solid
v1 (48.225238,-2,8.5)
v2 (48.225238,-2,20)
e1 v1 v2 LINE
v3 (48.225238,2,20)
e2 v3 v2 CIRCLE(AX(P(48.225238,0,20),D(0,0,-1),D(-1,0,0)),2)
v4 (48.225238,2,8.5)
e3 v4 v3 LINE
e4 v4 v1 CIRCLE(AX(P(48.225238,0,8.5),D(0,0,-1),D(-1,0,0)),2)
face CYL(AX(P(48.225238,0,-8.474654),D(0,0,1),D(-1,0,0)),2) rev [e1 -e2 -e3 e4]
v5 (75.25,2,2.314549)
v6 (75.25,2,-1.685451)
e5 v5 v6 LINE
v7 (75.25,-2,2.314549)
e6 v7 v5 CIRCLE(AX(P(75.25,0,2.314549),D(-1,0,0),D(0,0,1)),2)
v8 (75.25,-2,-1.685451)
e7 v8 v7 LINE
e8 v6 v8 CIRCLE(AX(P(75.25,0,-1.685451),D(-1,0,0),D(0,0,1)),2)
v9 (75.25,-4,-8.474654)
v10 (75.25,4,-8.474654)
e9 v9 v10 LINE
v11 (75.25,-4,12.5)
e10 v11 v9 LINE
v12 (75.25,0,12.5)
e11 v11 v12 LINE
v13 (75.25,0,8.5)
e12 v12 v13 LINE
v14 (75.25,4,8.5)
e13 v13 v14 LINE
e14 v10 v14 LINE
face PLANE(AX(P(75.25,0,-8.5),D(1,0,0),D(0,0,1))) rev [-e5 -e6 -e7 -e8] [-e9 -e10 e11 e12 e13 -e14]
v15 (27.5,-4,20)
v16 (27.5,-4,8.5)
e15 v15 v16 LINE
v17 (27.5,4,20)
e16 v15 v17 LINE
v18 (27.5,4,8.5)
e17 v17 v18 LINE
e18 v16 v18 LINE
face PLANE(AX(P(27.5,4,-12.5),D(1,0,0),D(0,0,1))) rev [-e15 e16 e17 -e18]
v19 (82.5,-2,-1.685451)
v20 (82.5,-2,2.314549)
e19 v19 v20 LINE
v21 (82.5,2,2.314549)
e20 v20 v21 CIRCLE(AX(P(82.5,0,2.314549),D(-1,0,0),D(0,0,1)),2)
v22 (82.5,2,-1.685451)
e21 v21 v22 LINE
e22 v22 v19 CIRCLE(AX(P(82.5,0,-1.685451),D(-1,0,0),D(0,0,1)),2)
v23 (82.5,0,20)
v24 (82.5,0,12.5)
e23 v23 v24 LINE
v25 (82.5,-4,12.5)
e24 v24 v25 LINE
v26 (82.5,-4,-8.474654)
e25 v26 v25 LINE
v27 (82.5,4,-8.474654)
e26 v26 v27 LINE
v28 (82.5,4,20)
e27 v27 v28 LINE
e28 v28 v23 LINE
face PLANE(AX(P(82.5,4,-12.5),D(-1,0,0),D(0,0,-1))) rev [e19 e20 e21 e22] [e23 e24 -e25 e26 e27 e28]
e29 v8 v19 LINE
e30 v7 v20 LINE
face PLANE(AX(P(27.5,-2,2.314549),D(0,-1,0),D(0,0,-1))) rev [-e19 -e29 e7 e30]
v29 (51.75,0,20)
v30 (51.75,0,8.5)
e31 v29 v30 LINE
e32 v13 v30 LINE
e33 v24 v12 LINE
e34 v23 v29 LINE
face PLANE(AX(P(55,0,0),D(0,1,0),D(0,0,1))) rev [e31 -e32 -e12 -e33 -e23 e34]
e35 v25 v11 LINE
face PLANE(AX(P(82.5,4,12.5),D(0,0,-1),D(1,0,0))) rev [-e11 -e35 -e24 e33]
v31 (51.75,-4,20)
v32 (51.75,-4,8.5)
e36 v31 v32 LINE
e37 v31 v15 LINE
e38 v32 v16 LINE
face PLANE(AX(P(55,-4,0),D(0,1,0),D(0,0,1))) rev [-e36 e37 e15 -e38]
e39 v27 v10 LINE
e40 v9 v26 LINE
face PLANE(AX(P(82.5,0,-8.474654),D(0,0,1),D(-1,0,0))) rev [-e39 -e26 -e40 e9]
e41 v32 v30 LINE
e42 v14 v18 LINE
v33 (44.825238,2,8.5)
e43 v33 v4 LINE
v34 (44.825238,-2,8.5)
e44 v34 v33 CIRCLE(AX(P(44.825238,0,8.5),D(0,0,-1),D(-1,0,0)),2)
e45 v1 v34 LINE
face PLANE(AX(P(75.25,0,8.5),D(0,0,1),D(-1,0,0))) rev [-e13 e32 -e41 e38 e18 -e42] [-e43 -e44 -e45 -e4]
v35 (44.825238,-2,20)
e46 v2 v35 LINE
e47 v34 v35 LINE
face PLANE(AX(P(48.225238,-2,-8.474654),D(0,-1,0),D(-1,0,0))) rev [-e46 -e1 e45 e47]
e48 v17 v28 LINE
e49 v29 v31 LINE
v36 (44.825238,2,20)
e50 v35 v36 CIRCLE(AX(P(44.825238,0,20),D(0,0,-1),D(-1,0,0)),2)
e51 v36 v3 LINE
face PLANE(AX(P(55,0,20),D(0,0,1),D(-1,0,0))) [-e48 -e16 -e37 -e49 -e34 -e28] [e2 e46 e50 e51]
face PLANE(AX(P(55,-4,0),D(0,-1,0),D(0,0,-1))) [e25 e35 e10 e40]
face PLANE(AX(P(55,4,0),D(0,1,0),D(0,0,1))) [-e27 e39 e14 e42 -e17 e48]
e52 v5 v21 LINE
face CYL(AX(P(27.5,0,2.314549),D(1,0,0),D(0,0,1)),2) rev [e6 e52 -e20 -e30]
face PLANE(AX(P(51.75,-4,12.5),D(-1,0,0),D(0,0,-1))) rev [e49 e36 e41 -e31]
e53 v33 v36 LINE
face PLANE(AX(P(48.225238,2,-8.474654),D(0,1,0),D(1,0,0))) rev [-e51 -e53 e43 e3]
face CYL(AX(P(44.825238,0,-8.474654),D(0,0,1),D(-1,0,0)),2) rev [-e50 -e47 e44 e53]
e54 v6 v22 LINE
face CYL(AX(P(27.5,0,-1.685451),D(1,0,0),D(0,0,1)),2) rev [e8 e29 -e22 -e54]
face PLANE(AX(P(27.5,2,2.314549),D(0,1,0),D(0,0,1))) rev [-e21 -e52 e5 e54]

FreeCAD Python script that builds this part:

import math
import FreeCAD as App
import Part
import Sketcher

V = App.Vector


def add_polygon(sketch, points):
    """Adds a closed chain of lines whose ends are joined by coincident constraints."""
    first, n = sketch.GeometryCount, len(points)
    for a, b in zip(points, points[1:] + points[:1]):
        sketch.addGeometry(Part.LineSegment(App.Vector(*a, 0), App.Vector(*b, 0)), False)
    for i in range(n):
        sketch.addConstraint(Sketcher.Constraint("Coincident", first + i, 2, first + (i + 1) % n, 1))

doc = App.newDocument("Part")
body = doc.addObject("PartDesign::Body", "Body")

sketch1 = body.newObject("Sketcher::SketchObject", "Sketch")
sketch1.AttachmentSupport = (doc.getObject("XZ_Plane"), [""])
sketch1.MapMode = "FlatFace"
add_polygon(sketch1, [(-27.5, -12.5), (-27.5, 12.5), (27.5, 12.5), (27.5, -12.5)])
sketch1.addConstraint([
    Sketcher.Constraint("Vertical", 0),
    Sketcher.Constraint("Horizontal", 1),
    Sketcher.Constraint("Vertical", 2),
    Sketcher.Constraint("Horizontal", 3),
    Sketcher.Constraint("Symmetric", 0, 2, 2, 2, -1, 1),
    Sketcher.Constraint("DistanceX", 1, 1, 1, 2, 55.0),
    Sketcher.Constraint("DistanceY", 0, 1, 0, 2, 25.0),
])
pad1 = body.newObject("PartDesign::Pad", "Pad")
pad1.Profile = sketch1
pad1.Length = 4
pad1.Reversed = True

sketch2 = body.newObject("Sketcher::SketchObject", "Sketch001")
sketch2.AttachmentSupport = (doc.getObject("XZ_Plane"), [""])
sketch2.MapMode = "FlatFace"
sketch2.AttachmentOffset = App.Placement(V(0, 0, -4), App.Rotation())
add_polygon(sketch2, [(-20.25, -8.5), (-20.25, 8.5), (20.25, 8.5), (20.25, -8.5)])
sketch2.addConstraint([
    Sketcher.Constraint("Vertical", 0),
    Sketcher.Constraint("Horizontal", 1),
    Sketcher.Constraint("Vertical", 2),
    Sketcher.Constraint("Horizontal", 3),
    Sketcher.Constraint("Symmetric", 0, 2, 2, 2, -1, 1),
    Sketcher.Constraint("DistanceY", 0, 1, 0, 2, 17.0),
    Sketcher.Constraint("DistanceX", 1, 1, 1, 2, 40.5),
])
pocket1 = body.newObject("PartDesign::Pocket", "Pocket")
pocket1.Profile = sketch2
pocket1.Type = "ThroughAll"
pocket1.Reversed = True

sketch3 = body.newObject("Sketcher::SketchObject", "Sketch002")
sketch3.AttachmentSupport = (doc.getObject("XZ_Plane"), [""])
sketch3.MapMode = "FlatFace"
sketch3.AttachmentOffset = App.Placement(V(0, 0, -4), App.Rotation())
add_polygon(sketch3, [(-27.5, -12.5), (-27.5, -8.474654), (27.5, -8.474654), (27.5, -12.5)])
sketch3.addConstraint([
    Sketcher.Constraint("Vertical", 0),
    Sketcher.Constraint("Horizontal", 1),
    Sketcher.Constraint("Vertical", 2),
    Sketcher.Constraint("Horizontal", 3),
    Sketcher.Constraint("DistanceX", 1, 1, 1, 2, 55.0),
    Sketcher.Constraint("DistanceX", 0, 2, -1, 1, 27.5),
    Sketcher.Constraint("DistanceY", 2, 2, -1, 1, 12.5),
    Sketcher.Constraint("DistanceY", 0, 1, 0, 2, 4.025346),
])
pocket2 = body.newObject("PartDesign::Pocket", "Pocket001")
pocket2.Profile = sketch3
pocket2.Type = "ThroughAll"
pocket2.Reversed = True

sketch4 = body.newObject("Sketcher::SketchObject", "Sketch003")
sketch4.AttachmentSupport = (doc.getObject("XZ_Plane"), [""])
sketch4.MapMode = "FlatFace"
sketch4.AttachmentOffset = App.Placement(V(0, 0, -4), App.Rotation())
add_polygon(sketch4, [(20.25, -8.474654), (20.25, 12.5), (27.5, 12.5), (27.5, -8.474654)])
sketch4.addConstraint([
    Sketcher.Constraint("Vertical", 0),
    Sketcher.Constraint("Horizontal", 1),
    Sketcher.Constraint("Vertical", 2),
    Sketcher.Constraint("Horizontal", 3),
    Sketcher.Constraint("DistanceX", 1, 1, 1, 2, 7.25),
    Sketcher.Constraint("DistanceY", -1, 1, 0, 2, 12.5),
    Sketcher.Constraint("DistanceX", -1, 1, 1, 2, 27.5),
    Sketcher.Constraint("DistanceY", 0, 1, 0, 2, 20.974654),
])
pad2 = body.newObject("PartDesign::Pad", "Pad001")
pad2.Profile = sketch4
pad2.Length = 8

sketch5 = body.newObject("Sketcher::SketchObject", "Sketch004")
sketch5.AttachmentSupport = (doc.getObject("XZ_Plane"), [""])
sketch5.MapMode = "FlatFace"
sketch5.AttachmentOffset = App.Placement(V(0, 0, -4), App.Rotation())
add_polygon(sketch5, [(-27.5, -8.474654), (-27.5, 12.5), (-20.25, 12.5), (-20.25, -8.474654)])
sketch5.addConstraint([
    Sketcher.Constraint("Vertical", 0),
    Sketcher.Constraint("Horizontal", 1),
    Sketcher.Constraint("Vertical", 2),
    Sketcher.Constraint("Horizontal", 3),
    Sketcher.Constraint("DistanceX", 1, 1, 1, 2, 7.25),
    Sketcher.Constraint("DistanceX", 0, 2, -1, 1, 27.5),
    Sketcher.Constraint("DistanceY", -1, 1, 0, 2, 12.5),
    Sketcher.Constraint("DistanceY", 0, 1, 0, 2, 20.974654),
])
pad3 = body.newObject("PartDesign::Pad", "Pad002")
pad3.Profile = sketch5
pad3.Length = 8

sketch6 = body.newObject("Sketcher::SketchObject", "Sketch005")
sketch6.AttachmentSupport = (doc.getObject("XZ_Plane"), [""])
sketch6.MapMode = "FlatFace"
add_polygon(sketch6, [(3.25, 12.5), (3.25, 8.5), (20.25, 8.5), (20.25, 12.5)])
sketch6.addConstraint([
    Sketcher.Constraint("Vertical", 0),
    Sketcher.Constraint("Horizontal", 1),
    Sketcher.Constraint("Vertical", 2),
    Sketcher.Constraint("Horizontal", 3),
    Sketcher.Constraint("DistanceX", 1, 1, 1, 2, 17.0),
    Sketcher.Constraint("DistanceY", 0, 2, 0, 1, 4.0),
    Sketcher.Constraint("DistanceY", -1, 1, 0, 2, 8.5),
    Sketcher.Constraint("DistanceX", -1, 1, 0, 2, 3.25),
])
pad4 = body.newObject("PartDesign::Pad", "Pad003")
pad4.Profile = sketch6
pad4.Length = 4

sketch7 = body.newObject("Sketcher::SketchObject", "Sketch006")
sketch7.AttachmentSupport = (doc.getObject("XY_Plane"), [""])
sketch7.MapMode = "FlatFace"
sketch7.AttachmentOffset = App.Placement(V(0, 0, 12.5), App.Rotation())
add_polygon(sketch7, [(-27.5, 4), (-27.5, 0), (27.5, 0), (27.5, 4)])
sketch7.addConstraint([
    Sketcher.Constraint("Vertical", 0),
    Sketcher.Constraint("Horizontal", 1),
    Sketcher.Constraint("Vertical", 2),
    Sketcher.Constraint("Horizontal", 3),
    Sketcher.Constraint("Symmetric", 0, 2, 1, 2, -1, 1),
    Sketcher.Constraint("DistanceX", 1, 1, 1, 2, 55.0),
    Sketcher.Constraint("DistanceY", 0, 2, 0, 1, 4.0),
])
pad5 = body.newObject("PartDesign::Pad", "Pad004")
pad5.Profile = sketch7
pad5.Length = 7.5

sketch8 = body.newObject("Sketcher::SketchObject", "Sketch007")
sketch8.AttachmentSupport = (doc.getObject("XY_Plane"), [""])
sketch8.MapMode = "FlatFace"
sketch8.AttachmentOffset = App.Placement(V(0, 0, 12.5), App.Rotation())
add_polygon(sketch8, [(3.25, 0), (3.25, -4), (27.5, -4), (27.5, 0)])
sketch8.addConstraint([
    Sketcher.Constraint("Vertical", 0),
    Sketcher.Constraint("Horizontal", 1),
    Sketcher.Constraint("Vertical", 2),
    Sketcher.Constraint("Horizontal", 3),
    Sketcher.Constraint("PointOnObject", 2, 2, -1),
    Sketcher.Constraint("DistanceY", 0, 2, 0, 1, 4.0),
    Sketcher.Constraint("DistanceX", 1, 1, 1, 2, 24.25),
    Sketcher.Constraint("DistanceX", -1, 1, 1, 2, 27.5),
])
pad6 = body.newObject("PartDesign::Pad", "Pad005")
pad6.Profile = sketch8
pad6.Length = 7.5

sketch9 = body.newObject("Sketcher::SketchObject", "Sketch008")
sketch9.AttachmentSupport = (doc.getObject("XZ_Plane"), [""])
sketch9.MapMode = "FlatFace"
sketch9.AttachmentOffset = App.Placement(V(0, 0, -4), App.Rotation())
add_polygon(sketch9, [(20.25, -8.474654), (20.25, 8.5), (27.5, 8.5), (27.5, -8.474654)])
sketch9.addConstraint([
    Sketcher.Constraint("Vertical", 0),
    Sketcher.Constraint("Horizontal", 1),
    Sketcher.Constraint("Vertical", 2),
    Sketcher.Constraint("Horizontal", 3),
    Sketcher.Constraint("DistanceX", 1, 1, 1, 2, 7.25),
    Sketcher.Constraint("DistanceY", -1, 1, 0, 2, 8.5),
    Sketcher.Constraint("DistanceX", -1, 1, 1, 2, 27.5),
    Sketcher.Constraint("DistanceY", 0, 1, 0, 2, 16.974654),
])
pocket3 = body.newObject("PartDesign::Pocket", "Pocket002")
pocket3.Profile = sketch9
pocket3.Type = "ThroughAll"
pocket3.Reversed = True

sketch10 = body.newObject("Sketcher::SketchObject", "Sketch009")
sketch10.AttachmentSupport = (doc.getObject("YZ_Plane"), [""])
sketch10.MapMode = "FlatFace"
sketch10.AttachmentOffset = App.Placement(V(0, 0, -27.5), App.Rotation())
sketch10.addGeometry([
    Part.LineSegment(V(-2, -1.685451, 0), V(-2, 2.314549, 0)),
    Part.ArcOfCircle(Part.Circle(V(0, 2.314549, 0), V(0, 0, 1), 2), math.radians(0), math.radians(180)),
    Part.LineSegment(V(2, 2.314549, 0), V(2, -1.685451, 0)),
    Part.ArcOfCircle(Part.Circle(V(0, -1.685451, 0), V(0, 0, 1), 2), math.radians(180), math.radians(360)),
], False)
sketch10.addConstraint([
    Sketcher.Constraint("Tangent", 0, 2, 1, 2),
    Sketcher.Constraint("Tangent", 1, 1, 2, 1),
    Sketcher.Constraint("Tangent", 2, 2, 3, 2),
    Sketcher.Constraint("Tangent", 3, 1, 0, 1),
    Sketcher.Constraint("Vertical", 0),
    Sketcher.Constraint("Vertical", 2),
    Sketcher.Constraint("PointOnObject", 1, 3, -2),
    Sketcher.Constraint("Radius", 1, 2.0),
    Sketcher.Constraint("DistanceY", 0, 1, 0, 2, 4.0),
    Sketcher.Constraint("DistanceY", -1, 1, 1, 3, 2.314549),
])
pocket4 = body.newObject("PartDesign::Pocket", "Pocket003")
pocket4.Profile = sketch10
pocket4.Type = "ThroughAll"
pocket4.Reversed = True

sketch11 = body.newObject("Sketcher::SketchObject", "Sketch010")
sketch11.AttachmentSupport = (doc.getObject("XY_Plane"), [""])
sketch11.MapMode = "FlatFace"
sketch11.AttachmentOffset = App.Placement(V(0, 0, 12.5), App.Rotation())
sketch11.addGeometry([
    Part.LineSegment(V(10.174762, 2, 0), V(6.774762, 2, 0)),
    Part.ArcOfCircle(Part.Circle(V(6.774762, 0, 0), V(0, 0, 1), 2), math.radians(90), math.radians(270)),
    Part.LineSegment(V(6.774762, -2, 0), V(10.174762, -2, 0)),
    Part.ArcOfCircle(Part.Circle(V(10.174762, 0, 0), V(0, 0, 1), 2), math.radians(-90), math.radians(90)),
], False)
sketch11.addConstraint([
    Sketcher.Constraint("Tangent", 0, 2, 1, 1),
    Sketcher.Constraint("Tangent", 1, 2, 2, 1),
    Sketcher.Constraint("Tangent", 2, 2, 3, 1),
    Sketcher.Constraint("Tangent", 3, 2, 0, 1),
    Sketcher.Constraint("Horizontal", 0),
    Sketcher.Constraint("Horizontal", 2),
    Sketcher.Constraint("PointOnObject", 1, 3, -1),
    Sketcher.Constraint("Radius", 1, 2.0),
    Sketcher.Constraint("DistanceX", 0, 2, 0, 1, 3.4),
    Sketcher.Constraint("DistanceX", -1, 1, 1, 3, 6.774762),
])
pocket5 = body.newObject("PartDesign::Pocket", "Pocket004")
pocket5.Profile = sketch11
pocket5.Type = "ThroughAll"
pocket5.Midplane = True
body2 = doc.addObject("PartDesign::Body", "Body001")
doc.recompute()

mirroring = doc.addObject("Part::Mirroring", "Mirroring")
mirroring.Source = body
mirroring.Base = V(27.5, 0, 14.25)
mirroring.Normal = V(1, 0, 0)
body2.BaseFeature = mirroring
doc.recompute()
body.Visibility = False
mirroring.Visibility = False

doc.recompute()
